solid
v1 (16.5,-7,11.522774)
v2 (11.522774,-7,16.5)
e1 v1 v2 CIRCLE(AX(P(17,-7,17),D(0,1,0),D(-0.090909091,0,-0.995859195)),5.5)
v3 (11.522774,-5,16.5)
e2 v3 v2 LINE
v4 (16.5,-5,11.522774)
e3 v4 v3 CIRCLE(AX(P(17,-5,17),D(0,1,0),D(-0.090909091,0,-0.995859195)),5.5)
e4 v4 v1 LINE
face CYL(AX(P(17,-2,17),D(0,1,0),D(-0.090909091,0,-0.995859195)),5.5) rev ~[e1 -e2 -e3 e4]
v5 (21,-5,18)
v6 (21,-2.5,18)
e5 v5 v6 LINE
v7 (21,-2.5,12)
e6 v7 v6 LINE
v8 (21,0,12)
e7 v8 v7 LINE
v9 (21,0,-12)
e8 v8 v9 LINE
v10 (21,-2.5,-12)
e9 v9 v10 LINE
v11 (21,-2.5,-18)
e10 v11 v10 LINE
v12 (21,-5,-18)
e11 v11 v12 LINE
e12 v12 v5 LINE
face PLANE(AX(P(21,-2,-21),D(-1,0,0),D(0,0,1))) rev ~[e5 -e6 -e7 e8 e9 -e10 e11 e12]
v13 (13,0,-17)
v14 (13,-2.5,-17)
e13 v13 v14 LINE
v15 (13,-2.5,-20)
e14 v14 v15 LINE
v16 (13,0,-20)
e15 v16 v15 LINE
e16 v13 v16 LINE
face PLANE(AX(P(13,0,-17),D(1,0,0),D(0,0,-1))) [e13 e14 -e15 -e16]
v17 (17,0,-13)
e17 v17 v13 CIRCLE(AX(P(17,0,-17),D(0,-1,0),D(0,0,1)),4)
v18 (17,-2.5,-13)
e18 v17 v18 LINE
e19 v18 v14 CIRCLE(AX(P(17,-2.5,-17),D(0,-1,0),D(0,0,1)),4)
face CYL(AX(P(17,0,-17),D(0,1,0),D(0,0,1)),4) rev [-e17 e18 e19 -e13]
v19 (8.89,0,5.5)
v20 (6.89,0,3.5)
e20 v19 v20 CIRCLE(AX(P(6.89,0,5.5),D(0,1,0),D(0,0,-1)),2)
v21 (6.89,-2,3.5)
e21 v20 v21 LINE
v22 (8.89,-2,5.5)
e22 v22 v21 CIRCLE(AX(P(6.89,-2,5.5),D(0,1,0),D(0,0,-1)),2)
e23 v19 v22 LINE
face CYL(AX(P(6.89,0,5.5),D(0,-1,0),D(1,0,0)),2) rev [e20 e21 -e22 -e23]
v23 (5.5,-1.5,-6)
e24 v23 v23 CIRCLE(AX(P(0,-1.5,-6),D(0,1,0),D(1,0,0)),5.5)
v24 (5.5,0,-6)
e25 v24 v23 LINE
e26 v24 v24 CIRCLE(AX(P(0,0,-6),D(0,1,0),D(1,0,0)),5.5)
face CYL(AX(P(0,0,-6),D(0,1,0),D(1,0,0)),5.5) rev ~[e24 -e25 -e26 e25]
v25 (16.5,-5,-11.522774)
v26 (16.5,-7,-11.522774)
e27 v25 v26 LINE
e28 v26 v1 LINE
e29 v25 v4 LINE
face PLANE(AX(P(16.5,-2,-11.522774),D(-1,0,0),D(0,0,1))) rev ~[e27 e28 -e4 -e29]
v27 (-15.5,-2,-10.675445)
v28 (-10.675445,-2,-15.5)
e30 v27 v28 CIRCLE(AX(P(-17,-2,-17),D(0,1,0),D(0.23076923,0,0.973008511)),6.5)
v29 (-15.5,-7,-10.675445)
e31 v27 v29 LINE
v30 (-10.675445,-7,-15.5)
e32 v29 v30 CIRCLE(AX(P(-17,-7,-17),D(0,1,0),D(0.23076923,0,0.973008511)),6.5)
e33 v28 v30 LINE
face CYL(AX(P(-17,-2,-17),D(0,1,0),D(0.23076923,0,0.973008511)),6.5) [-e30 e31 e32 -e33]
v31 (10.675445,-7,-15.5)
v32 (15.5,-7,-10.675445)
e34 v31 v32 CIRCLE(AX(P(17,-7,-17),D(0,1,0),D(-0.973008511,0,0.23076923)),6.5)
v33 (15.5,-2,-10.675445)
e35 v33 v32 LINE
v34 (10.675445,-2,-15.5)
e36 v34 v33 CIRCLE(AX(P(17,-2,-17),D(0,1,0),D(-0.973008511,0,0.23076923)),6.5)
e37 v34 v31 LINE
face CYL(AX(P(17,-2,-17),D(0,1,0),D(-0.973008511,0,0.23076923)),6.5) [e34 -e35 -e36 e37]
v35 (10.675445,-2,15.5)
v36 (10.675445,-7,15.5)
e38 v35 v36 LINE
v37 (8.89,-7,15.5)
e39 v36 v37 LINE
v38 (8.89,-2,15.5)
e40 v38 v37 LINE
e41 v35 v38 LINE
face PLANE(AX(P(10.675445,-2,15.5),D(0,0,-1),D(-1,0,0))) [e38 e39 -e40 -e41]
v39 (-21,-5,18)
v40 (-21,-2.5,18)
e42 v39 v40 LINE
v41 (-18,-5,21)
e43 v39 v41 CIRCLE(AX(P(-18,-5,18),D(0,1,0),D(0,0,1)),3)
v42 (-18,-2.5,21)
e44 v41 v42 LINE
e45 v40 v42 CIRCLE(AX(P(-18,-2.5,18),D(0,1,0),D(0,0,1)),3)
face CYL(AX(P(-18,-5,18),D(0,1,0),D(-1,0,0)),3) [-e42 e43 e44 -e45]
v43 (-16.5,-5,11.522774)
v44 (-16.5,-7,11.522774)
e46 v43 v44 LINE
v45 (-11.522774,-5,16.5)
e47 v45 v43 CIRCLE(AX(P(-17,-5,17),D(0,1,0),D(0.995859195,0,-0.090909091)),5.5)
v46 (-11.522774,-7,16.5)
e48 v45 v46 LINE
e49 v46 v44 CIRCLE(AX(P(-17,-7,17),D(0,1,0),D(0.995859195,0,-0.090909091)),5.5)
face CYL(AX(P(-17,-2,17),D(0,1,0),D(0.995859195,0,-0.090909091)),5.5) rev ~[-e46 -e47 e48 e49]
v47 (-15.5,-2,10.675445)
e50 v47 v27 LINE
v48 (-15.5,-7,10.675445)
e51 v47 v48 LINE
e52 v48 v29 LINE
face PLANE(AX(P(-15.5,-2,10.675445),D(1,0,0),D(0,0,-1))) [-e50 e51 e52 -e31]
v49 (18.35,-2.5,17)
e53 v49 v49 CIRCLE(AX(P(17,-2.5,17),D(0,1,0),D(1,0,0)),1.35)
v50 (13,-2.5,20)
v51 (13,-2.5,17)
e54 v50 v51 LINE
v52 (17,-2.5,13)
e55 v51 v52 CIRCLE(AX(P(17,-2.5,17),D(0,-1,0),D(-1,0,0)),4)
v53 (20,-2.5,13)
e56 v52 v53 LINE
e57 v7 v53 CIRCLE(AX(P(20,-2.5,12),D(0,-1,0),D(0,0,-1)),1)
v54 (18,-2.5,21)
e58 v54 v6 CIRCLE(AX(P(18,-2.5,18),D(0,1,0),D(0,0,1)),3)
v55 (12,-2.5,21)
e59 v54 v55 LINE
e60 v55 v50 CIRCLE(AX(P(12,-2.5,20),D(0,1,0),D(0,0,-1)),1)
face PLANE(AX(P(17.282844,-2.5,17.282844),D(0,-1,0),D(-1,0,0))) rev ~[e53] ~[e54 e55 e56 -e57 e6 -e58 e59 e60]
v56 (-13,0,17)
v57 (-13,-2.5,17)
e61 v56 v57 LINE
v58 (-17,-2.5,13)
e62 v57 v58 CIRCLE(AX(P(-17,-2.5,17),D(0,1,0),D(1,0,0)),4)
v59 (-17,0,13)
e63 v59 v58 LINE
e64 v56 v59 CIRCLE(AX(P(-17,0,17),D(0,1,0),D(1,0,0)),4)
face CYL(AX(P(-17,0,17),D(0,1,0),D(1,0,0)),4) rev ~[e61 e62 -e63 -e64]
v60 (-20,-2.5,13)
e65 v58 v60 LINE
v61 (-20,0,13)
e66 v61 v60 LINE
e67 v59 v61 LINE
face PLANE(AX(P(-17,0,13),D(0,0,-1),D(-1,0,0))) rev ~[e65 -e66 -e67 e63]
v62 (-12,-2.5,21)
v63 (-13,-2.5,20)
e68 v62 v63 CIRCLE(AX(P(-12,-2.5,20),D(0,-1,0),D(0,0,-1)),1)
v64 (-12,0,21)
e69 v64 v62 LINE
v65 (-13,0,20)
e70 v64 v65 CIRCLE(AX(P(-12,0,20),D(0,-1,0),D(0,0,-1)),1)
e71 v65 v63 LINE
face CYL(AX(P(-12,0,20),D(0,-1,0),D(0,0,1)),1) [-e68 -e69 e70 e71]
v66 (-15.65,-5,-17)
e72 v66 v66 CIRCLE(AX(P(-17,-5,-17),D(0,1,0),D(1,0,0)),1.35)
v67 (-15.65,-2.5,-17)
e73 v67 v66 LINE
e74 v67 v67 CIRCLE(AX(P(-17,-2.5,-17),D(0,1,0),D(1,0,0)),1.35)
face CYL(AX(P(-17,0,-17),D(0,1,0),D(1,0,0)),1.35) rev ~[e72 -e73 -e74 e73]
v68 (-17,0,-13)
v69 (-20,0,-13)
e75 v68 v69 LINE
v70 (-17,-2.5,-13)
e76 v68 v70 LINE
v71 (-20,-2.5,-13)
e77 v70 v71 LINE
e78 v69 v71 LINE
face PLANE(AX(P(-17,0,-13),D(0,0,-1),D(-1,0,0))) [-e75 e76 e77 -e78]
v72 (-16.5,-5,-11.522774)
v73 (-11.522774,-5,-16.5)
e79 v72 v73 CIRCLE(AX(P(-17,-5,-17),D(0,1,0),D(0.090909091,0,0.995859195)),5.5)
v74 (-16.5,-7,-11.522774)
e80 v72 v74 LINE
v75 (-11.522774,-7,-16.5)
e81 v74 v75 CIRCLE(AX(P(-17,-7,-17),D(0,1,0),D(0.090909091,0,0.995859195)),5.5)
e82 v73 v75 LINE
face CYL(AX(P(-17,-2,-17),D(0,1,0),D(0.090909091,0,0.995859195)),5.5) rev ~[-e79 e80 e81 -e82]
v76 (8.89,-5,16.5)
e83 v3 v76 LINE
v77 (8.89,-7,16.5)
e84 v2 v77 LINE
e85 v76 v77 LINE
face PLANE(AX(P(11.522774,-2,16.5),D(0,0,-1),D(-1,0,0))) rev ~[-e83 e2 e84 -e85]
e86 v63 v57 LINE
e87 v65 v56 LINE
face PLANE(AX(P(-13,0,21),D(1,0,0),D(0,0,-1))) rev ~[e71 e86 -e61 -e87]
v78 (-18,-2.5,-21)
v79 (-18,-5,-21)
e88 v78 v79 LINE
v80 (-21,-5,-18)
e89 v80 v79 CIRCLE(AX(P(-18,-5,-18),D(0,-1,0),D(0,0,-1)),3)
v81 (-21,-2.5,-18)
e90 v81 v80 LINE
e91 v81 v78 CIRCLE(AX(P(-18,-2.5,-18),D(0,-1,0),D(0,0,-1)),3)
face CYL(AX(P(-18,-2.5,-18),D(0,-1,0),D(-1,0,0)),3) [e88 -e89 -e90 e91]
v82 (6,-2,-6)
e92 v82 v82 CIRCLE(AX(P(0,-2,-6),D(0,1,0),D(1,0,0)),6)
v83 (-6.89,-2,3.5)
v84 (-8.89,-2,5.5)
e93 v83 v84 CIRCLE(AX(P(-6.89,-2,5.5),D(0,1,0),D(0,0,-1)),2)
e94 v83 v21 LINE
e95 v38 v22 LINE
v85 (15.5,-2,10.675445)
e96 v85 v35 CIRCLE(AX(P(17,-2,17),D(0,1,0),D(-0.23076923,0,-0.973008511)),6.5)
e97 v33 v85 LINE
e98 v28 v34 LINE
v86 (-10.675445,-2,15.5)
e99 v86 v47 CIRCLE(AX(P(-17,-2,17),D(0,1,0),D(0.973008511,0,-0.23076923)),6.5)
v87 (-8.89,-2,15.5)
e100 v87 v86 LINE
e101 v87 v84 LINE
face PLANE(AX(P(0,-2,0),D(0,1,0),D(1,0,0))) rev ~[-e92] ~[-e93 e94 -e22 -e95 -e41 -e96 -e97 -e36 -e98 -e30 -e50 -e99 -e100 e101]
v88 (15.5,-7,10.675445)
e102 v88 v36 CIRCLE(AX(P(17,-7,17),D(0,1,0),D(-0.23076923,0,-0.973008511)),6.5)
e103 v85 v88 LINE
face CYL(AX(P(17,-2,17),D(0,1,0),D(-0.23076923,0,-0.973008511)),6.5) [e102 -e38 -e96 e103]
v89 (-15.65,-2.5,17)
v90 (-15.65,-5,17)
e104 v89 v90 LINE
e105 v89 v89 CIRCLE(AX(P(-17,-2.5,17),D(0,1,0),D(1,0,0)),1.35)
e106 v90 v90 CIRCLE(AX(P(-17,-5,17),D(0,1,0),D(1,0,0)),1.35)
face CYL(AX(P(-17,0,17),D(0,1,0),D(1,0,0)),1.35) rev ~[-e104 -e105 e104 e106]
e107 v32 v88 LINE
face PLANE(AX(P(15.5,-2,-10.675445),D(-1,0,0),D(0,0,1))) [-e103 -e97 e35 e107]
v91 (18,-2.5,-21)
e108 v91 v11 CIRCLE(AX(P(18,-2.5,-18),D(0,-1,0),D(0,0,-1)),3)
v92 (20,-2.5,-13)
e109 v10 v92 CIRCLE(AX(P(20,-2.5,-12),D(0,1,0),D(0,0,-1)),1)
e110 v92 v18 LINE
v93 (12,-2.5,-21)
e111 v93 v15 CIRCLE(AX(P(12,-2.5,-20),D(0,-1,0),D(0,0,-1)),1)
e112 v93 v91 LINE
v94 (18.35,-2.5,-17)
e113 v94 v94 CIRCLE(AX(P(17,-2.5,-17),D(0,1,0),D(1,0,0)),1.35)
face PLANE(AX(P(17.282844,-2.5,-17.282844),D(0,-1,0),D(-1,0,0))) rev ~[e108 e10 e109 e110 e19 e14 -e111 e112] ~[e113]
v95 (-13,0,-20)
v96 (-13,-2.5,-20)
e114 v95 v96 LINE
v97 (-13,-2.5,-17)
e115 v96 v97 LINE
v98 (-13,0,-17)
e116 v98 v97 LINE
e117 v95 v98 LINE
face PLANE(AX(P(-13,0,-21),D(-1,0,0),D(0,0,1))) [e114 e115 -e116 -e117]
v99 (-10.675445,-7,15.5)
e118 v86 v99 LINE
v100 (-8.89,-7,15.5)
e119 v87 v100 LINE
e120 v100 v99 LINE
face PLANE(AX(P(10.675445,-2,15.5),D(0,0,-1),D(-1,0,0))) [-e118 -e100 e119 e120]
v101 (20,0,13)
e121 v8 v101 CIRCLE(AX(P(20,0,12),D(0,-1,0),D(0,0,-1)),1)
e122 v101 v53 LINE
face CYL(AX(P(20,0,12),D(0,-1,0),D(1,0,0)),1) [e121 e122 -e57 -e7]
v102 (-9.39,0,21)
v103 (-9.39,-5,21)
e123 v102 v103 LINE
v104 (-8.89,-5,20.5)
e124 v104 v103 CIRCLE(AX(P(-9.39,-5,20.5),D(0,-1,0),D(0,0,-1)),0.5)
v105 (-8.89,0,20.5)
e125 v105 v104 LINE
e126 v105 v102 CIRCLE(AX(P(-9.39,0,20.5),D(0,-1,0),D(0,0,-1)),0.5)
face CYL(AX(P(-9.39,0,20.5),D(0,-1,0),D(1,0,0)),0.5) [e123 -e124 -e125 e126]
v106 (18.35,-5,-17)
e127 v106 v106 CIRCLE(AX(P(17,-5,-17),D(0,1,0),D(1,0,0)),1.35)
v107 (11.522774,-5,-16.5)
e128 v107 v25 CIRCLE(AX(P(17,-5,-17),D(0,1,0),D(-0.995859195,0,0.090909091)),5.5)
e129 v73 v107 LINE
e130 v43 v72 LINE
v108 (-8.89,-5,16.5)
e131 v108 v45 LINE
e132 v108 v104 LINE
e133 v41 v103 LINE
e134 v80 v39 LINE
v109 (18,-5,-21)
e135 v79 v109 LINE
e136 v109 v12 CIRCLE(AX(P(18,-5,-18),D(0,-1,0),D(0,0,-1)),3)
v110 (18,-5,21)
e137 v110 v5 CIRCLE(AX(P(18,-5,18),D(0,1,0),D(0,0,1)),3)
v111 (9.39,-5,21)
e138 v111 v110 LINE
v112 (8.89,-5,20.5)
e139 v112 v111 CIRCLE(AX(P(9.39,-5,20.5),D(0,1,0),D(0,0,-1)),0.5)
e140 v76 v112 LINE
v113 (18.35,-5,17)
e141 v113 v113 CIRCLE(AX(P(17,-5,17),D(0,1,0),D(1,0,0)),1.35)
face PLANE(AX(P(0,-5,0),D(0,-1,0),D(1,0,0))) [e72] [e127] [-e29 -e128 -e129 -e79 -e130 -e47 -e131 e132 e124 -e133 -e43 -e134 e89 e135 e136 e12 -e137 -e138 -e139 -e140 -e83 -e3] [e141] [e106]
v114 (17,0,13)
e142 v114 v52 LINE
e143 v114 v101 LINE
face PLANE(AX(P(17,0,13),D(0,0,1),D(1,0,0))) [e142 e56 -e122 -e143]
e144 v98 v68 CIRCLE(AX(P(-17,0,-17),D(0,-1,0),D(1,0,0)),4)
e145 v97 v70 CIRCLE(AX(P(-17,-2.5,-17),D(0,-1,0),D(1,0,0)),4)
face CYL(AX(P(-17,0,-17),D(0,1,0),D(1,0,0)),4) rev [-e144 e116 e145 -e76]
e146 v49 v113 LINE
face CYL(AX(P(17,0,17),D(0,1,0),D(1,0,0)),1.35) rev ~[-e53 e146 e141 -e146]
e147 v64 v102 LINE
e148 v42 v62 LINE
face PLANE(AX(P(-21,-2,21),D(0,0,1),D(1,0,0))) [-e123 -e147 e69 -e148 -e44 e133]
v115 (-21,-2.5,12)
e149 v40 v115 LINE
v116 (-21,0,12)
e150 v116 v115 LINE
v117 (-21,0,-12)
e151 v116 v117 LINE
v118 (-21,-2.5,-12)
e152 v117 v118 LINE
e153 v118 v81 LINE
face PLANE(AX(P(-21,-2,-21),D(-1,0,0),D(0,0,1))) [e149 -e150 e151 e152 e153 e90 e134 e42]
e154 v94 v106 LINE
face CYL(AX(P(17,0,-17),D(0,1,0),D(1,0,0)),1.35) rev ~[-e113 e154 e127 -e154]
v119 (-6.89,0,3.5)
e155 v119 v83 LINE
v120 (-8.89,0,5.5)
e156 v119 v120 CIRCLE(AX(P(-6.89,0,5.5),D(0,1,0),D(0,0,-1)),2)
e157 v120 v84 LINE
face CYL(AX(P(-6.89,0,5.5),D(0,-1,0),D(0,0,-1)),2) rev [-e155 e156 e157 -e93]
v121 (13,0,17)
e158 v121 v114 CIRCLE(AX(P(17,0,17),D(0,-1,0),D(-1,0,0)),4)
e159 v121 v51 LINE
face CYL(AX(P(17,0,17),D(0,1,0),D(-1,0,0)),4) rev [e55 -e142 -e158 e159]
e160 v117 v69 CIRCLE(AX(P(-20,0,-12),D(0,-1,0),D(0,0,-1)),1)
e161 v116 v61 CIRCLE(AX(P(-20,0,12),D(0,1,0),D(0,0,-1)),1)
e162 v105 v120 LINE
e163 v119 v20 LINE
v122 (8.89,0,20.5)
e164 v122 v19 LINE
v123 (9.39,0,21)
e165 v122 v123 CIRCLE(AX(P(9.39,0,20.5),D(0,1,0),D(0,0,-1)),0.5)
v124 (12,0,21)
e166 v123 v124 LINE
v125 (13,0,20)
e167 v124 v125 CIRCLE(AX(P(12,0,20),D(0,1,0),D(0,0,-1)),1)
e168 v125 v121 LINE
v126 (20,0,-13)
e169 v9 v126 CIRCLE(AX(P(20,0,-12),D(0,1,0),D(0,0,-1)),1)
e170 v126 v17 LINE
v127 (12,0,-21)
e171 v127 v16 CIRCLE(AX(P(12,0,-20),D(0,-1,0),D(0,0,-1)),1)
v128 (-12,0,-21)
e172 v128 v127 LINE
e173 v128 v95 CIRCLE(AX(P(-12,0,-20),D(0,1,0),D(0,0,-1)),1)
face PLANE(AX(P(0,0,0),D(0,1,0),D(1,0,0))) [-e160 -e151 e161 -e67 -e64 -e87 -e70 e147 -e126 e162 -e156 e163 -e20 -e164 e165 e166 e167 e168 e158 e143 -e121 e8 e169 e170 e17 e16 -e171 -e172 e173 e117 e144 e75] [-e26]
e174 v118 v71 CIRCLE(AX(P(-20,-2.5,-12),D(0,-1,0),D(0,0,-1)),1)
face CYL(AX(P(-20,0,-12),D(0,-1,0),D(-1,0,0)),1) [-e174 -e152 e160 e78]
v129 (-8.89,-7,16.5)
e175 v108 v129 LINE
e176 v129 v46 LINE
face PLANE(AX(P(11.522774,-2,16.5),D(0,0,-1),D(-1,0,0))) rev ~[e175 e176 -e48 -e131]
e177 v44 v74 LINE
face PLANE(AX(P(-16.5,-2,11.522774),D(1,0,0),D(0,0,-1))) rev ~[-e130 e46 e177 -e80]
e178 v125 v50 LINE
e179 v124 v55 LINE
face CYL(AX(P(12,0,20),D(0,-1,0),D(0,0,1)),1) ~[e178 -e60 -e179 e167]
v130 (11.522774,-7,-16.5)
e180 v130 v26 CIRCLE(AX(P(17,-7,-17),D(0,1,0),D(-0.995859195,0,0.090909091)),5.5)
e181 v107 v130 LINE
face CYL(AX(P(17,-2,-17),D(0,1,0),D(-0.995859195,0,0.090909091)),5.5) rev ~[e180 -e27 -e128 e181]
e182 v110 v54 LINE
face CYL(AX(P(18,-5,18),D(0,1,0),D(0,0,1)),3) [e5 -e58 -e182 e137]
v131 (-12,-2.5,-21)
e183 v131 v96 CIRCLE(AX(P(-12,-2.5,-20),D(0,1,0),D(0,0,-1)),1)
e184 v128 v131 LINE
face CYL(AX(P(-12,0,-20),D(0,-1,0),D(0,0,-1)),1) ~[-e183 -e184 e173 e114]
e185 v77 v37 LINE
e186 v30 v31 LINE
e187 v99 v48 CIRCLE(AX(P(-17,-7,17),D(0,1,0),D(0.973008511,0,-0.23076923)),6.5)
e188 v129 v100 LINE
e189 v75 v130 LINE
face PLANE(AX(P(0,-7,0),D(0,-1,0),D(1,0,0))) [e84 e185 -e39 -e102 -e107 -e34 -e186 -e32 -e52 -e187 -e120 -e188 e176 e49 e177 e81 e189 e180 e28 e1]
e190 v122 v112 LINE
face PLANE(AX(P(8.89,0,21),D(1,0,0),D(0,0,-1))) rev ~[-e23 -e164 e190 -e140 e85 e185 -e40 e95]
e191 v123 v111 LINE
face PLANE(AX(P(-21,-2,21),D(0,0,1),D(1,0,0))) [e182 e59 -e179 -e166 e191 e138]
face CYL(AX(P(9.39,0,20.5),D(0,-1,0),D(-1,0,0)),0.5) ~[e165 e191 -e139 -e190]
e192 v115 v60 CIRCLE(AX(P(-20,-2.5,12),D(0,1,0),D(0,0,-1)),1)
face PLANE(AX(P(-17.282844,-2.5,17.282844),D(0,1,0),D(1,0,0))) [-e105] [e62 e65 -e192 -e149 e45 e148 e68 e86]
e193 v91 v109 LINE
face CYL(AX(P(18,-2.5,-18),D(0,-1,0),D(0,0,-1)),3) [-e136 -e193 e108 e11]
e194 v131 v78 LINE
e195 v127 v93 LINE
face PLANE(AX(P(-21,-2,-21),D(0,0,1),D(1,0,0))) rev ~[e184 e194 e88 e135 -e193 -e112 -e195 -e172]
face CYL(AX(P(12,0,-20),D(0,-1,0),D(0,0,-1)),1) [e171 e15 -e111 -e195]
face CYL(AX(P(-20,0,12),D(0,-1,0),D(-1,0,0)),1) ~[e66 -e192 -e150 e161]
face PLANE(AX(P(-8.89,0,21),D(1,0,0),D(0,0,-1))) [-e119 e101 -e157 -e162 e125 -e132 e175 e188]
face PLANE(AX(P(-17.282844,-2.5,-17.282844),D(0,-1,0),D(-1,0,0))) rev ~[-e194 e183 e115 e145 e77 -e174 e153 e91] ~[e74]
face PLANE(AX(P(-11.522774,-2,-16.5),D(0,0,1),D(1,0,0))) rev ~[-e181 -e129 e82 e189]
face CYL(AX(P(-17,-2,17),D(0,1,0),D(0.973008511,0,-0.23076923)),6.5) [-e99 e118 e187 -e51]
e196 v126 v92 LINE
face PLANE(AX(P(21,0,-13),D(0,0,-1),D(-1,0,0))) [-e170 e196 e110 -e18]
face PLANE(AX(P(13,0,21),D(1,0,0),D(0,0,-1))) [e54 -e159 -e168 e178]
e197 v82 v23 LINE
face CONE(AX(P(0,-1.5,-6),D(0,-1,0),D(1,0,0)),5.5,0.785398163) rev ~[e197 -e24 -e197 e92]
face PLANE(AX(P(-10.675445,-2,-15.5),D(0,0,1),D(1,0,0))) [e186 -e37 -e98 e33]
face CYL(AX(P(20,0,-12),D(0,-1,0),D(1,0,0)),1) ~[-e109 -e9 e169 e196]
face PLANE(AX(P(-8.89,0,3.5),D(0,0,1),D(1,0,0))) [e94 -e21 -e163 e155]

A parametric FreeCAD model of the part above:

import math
import FreeCAD as App
import Part
import Sketcher
from FreeCAD import Vector
Q = App.Units.Quantity


def edges_at(feature, points):
    """Names of the edges that pass closest to the given points."""
    edges = feature.Shape.Edges
    near = lambda p: min(range(len(edges)), key=lambda i: edges[i].distToShape(Part.Vertex(*p))[0])
    return sorted({f"Edge{near(p) + 1}" for p in points})

doc = App.newDocument("Part")
body = doc.addObject("PartDesign::Body", "Body")

sketch1 = body.newObject("Sketcher::SketchObject", "Sketch")
sketch1.AttachmentSupport = (doc.getObject("XZ_Plane"), [""])
sketch1.MapMode = "FlatFace"
sketch1.addGeometry([
    Part.LineSegment(Vector(-21, -21, 0), Vector(-21, 21, 0)),
    Part.LineSegment(Vector(-21, 21, 0), Vector(21, 21, 0)),
    Part.LineSegment(Vector(21, 21, 0), Vector(21, -21, 0)),
    Part.LineSegment(Vector(21, -21, 0), Vector(-21, -21, 0)),
    Part.Circle(Vector(0, -6, 0), Vector(0, 0, 1), 6),
], False)
sketch1.addConstraint([
    Sketcher.Constraint("Coincident", 0, 2, 1, 1),
    Sketcher.Constraint("Coincident", 1, 2, 2, 1),
    Sketcher.Constraint("Coincident", 2, 2, 3, 1),
    Sketcher.Constraint("Coincident", 3, 2, 0, 1),
    Sketcher.Constraint("Vertical", 0),
    Sketcher.Constraint("Horizontal", 1),
    Sketcher.Constraint("Vertical", 2),
    Sketcher.Constraint("Horizontal", 3),
    Sketcher.Constraint("Symmetric", 0, 2, 2, 2, -1, 1),
    Sketcher.Constraint("PointOnObject", 4, 3, -2),
    Sketcher.Constraint("Equal", 3, 0),
    Sketcher.Constraint("Diameter", 4, Q("11 mm")),
    Sketcher.Constraint("DistanceX", 1, 1, 1, 2, Q("42 mm")),
    Sketcher.Constraint("DistanceY", 4, 3, -1, 1, Q("6 mm")),
])
pad1 = body.newObject("PartDesign::Pad", "Pad")
pad1.Profile = sketch1
pad1.Length = 2

sketch2 = body.newObject("Sketcher::SketchObject", "Sketch001")
sketch2.AttachmentSupport = (doc.getObject("XZ_Plane"), [""])
sketch2.MapMode = "FlatFace"
sketch2.AttachmentOffset = App.Placement(Vector(0, 0, 2), App.Rotation())
sketch2.addGeometry([
    Part.LineSegment(Vector(-21, 21, 0), Vector(-21, -21, 0)),
    Part.LineSegment(Vector(-21, -21, 0), Vector(21, -21, 0)),
    Part.LineSegment(Vector(21, -21, 0), Vector(21, 21, 0)),
    Part.LineSegment(Vector(21, 21, 0), Vector(-21, 21, 0)),
    Part.LineSegment(Vector(-17, -11.5, 0), Vector(-17, 11.5, 0)),
    Part.ArcOfCircle(Part.Circle(Vector(-16.5, 11.5, 0), Vector(0, 0, 1), 0.5), math.radians(95), math.radians(180)),
    Part.ArcOfCircle(Part.Circle(Vector(-17, 17, 0), Vector(0, 0, 1), 5), math.radians(-85), math.radians(-5)),
    Part.ArcOfCircle(Part.Circle(Vector(-11.5, 16.5, 0), Vector(0, 0, 1), 0.5), math.radians(90), math.radians(175)),
    Part.LineSegment(Vector(-11.5, 17, 0), Vector(11.5, 17, 0)),
    Part.ArcOfCircle(Part.Circle(Vector(11.5, 16.5, 0), Vector(0, 0, 1), 0.5), math.radians(5), math.radians(90)),
    Part.ArcOfCircle(Part.Circle(Vector(17, 17, 0), Vector(0, 0, 1), 5), math.radians(-175), math.radians(-95)),
    Part.ArcOfCircle(Part.Circle(Vector(16.5, 11.5, 0), Vector(0, 0, 1), 0.5), math.radians(0), math.radians(85)),
    Part.LineSegment(Vector(17, 11.5, 0), Vector(17, -11.5, 0)),
    Part.ArcOfCircle(Part.Circle(Vector(16.5, -11.5, 0), Vector(0, 0, 1), 0.5), math.radians(-85), math.radians(0)),
    Part.ArcOfCircle(Part.Circle(Vector(17, -17, 0), Vector(0, 0, 1), 5), math.radians(95), math.radians(175)),
    Part.ArcOfCircle(Part.Circle(Vector(11.5, -16.5, 0), Vector(0, 0, 1), 0.5), math.radians(-90), math.radians(-5)),
    Part.LineSegment(Vector(11.5, -17, 0), Vector(-11.5, -17, 0)),
    Part.ArcOfCircle(Part.Circle(Vector(-11.5, -16.5, 0), Vector(0, 0, 1), 0.5), math.radians(-175), math.radians(-90)),
    Part.ArcOfCircle(Part.Circle(Vector(-17, -17, 0), Vector(0, 0, 1), 5), math.radians(5), math.radians(85)),
    Part.ArcOfCircle(Part.Circle(Vector(-16.5, -11.5, 0), Vector(0, 0, 1), 0.5), math.radians(180), math.radians(265)),
], False)
sketch2.addConstraint([
    Sketcher.Constraint("Coincident", 0, 2, 1, 1),
    Sketcher.Constraint("Coincident", 1, 2, 2, 1),
    Sketcher.Constraint("Coincident", 2, 2, 3, 1),
    Sketcher.Constraint("Coincident", 3, 2, 0, 1),
    Sketcher.Constraint("Tangent", 4, 2, 5, 2),
    Sketcher.Constraint("Tangent", 5, 1, 6, 1),
    Sketcher.Constraint("Tangent", 6, 2, 7, 2),
    Sketcher.Constraint("Tangent", 7, 1, 8, 1),
    Sketcher.Constraint("Tangent", 8, 2, 9, 2),
    Sketcher.Constraint("Tangent", 9, 1, 10, 1),
    Sketcher.Constraint("Tangent", 10, 2, 11, 2),
    Sketcher.Constraint("Tangent", 11, 1, 12, 1),
    Sketcher.Constraint("Tangent", 12, 2, 13, 2),
    Sketcher.Constraint("Tangent", 13, 1, 14, 1),
    Sketcher.Constraint("Tangent", 14, 2, 15, 2),
    Sketcher.Constraint("Tangent", 15, 1, 16, 1),
    Sketcher.Constraint("Tangent", 16, 2, 17, 2),
    Sketcher.Constraint("Tangent", 17, 1, 18, 1),
    Sketcher.Constraint("Tangent", 18, 2, 19, 2),
    Sketcher.Constraint("Tangent", 19, 1, 4, 1),
    Sketcher.Constraint("Vertical", 0),
    Sketcher.Constraint("Horizontal", 1),
    Sketcher.Constraint("Vertical", 2),
    Sketcher.Constraint("Horizontal", 3),
    Sketcher.Constraint("Vertical", 4),
    Sketcher.Constraint("Horizontal", 8),
    Sketcher.Constraint("Vertical", 12),
    Sketcher.Constraint("Horizontal", 16),
    Sketcher.Constraint("Equal", 5, 7),
    Sketcher.Constraint("Equal", 7, 9),
    Sketcher.Constraint("Equal", 6, 10),
    Sketcher.Constraint("Equal", 9, 11),
    Sketcher.Constraint("Equal", 11, 13),
    Sketcher.Constraint("Equal", 10, 14),
    Sketcher.Constraint("Equal", 13, 15),
    Sketcher.Constraint("Equal", 15, 17),
    Sketcher.Constraint("Equal", 14, 18),
    Sketcher.Constraint("Equal", 17, 19),
    Sketcher.Constraint("Symmetric", 5, 3, 13, 3, -1, 1),
    Sketcher.Constraint("Symmetric", 7, 3, 15, 3, -1, 1),
    Sketcher.Constraint("Symmetric", 10, 3, 18, 3, -1, 1),
    Sketcher.Constraint("Symmetric", 0, 2, 2, 2, -1, 1),
    Sketcher.Constraint("Symmetric", 6, 3, 10, 3, -2),
    Sketcher.Constraint("Horizontal", 10, 3, 7, 1),
    Sketcher.Constraint("Vertical", 18, 3, 4, 2),
    Sketcher.Constraint("Equal", 3, 0),
    Sketcher.Constraint("Equal", 16, 4),
    Sketcher.Constraint("Radius", 6, Q("5 mm")),
    Sketcher.Constraint("Radius", 5, Q("0.5 mm")),
    Sketcher.Constraint("DistanceX", 1, 1, 1, 2, Q("42 mm")),
    Sketcher.Constraint("DistanceX", 6, 3, -1, 1, Q("17 mm")),
])
pad2 = body.newObject("PartDesign::Pad", "Pad001")
pad2.Profile = sketch2
pad2.Length = 3

sketch3 = body.newObject("Sketcher::SketchObject", "Sketch002")
sketch3.AttachmentSupport = (doc.getObject("XZ_Plane"), [""])
sketch3.MapMode = "FlatFace"
sketch3.AttachmentOffset = App.Placement(Vector(0, 0, 2), App.Rotation())
sketch3.addGeometry([
    Part.LineSegment(Vector(-17, 11.5, 0), Vector(-17, -11.5, 0)),
    Part.ArcOfCircle(Part.Circle(Vector(-16.5, -11.5, 0), Vector(0, 0, 1), 0.5), math.radians(180), math.radians(265)),
    Part.ArcOfCircle(Part.Circle(Vector(-17, -17, 0), Vector(0, 0, 1), 5), math.radians(5), math.radians(85)),
    Part.ArcOfCircle(Part.Circle(Vector(-11.5, -16.5, 0), Vector(0, 0, 1), 0.5), math.radians(-175), math.radians(-90)),
    Part.LineSegment(Vector(-11.5, -17, 0), Vector(11.5, -17, 0)),
    Part.ArcOfCircle(Part.Circle(Vector(11.5, -16.5, 0), Vector(0, 0, 1), 0.5), math.radians(-90), math.radians(-5)),
    Part.ArcOfCircle(Part.Circle(Vector(17, -17, 0), Vector(0, 0, 1), 5), math.radians(95), math.radians(175)),
    Part.ArcOfCircle(Part.Circle(Vector(16.5, -11.5, 0), Vector(0, 0, 1), 0.5), math.radians(-85), math.radians(0)),
    Part.LineSegment(Vector(17, -11.5, 0), Vector(17, 11.5, 0)),
    Part.ArcOfCircle(Part.Circle(Vector(16.5, 11.5, 0), Vector(0, 0, 1), 0.5), math.radians(0), math.radians(85)),
    Part.ArcOfCircle(Part.Circle(Vector(17, 17, 0), Vector(0, 0, 1), 5), math.radians(-175), math.radians(-95)),
    Part.ArcOfCircle(Part.Circle(Vector(11.5, 16.5, 0), Vector(0, 0, 1), 0.5), math.radians(5), math.radians(90)),
    Part.LineSegment(Vector(11.5, 17, 0), Vector(-11.5, 17, 0)),
    Part.ArcOfCircle(Part.Circle(Vector(-11.5, 16.5, 0), Vector(0, 0, 1), 0.5), math.radians(90), math.radians(175)),
    Part.ArcOfCircle(Part.Circle(Vector(-17, 17, 0), Vector(0, 0, 1), 5), math.radians(-85), math.radians(-5)),
    Part.ArcOfCircle(Part.Circle(Vector(-16.5, 11.5, 0), Vector(0, 0, 1), 0.5), math.radians(95), math.radians(180)),
    Part.LineSegment(Vector(-16.5, -11.5, 0), Vector(-16.5, 11.5, 0)),
    Part.ArcOfCircle(Part.Circle(Vector(-17, 17, 0), Vector(0, 0, 1), 5.5), math.radians(-85), math.radians(-5)),
    Part.LineSegment(Vector(-11.5, 16.5, 0), Vector(11.5, 16.5, 0)),
    Part.ArcOfCircle(Part.Circle(Vector(17, 17, 0), Vector(0, 0, 1), 5.5), math.radians(-175), math.radians(-95)),
    Part.LineSegment(Vector(16.5, 11.5, 0), Vector(16.5, -11.5, 0)),
    Part.ArcOfCircle(Part.Circle(Vector(17, -17, 0), Vector(0, 0, 1), 5.5), math.radians(95), math.radians(175)),
    Part.LineSegment(Vector(11.5, -16.5, 0), Vector(-11.5, -16.5, 0)),
    Part.ArcOfCircle(Part.Circle(Vector(-17, -17, 0), Vector(0, 0, 1), 5.5), math.radians(5), math.radians(85)),
], False)
sketch3.addConstraint([
    Sketcher.Constraint("Tangent", 0, 2, 1, 1),
    Sketcher.Constraint("Tangent", 1, 2, 2, 2),
    Sketcher.Constraint("Tangent", 2, 1, 3, 1),
    Sketcher.Constraint("Tangent", 3, 2, 4, 1),
    Sketcher.Constraint("Tangent", 4, 2, 5, 1),
    Sketcher.Constraint("Tangent", 5, 2, 6, 2),
    Sketcher.Constraint("Tangent", 6, 1, 7, 1),
    Sketcher.Constraint("Tangent", 7, 2, 8, 1),
    Sketcher.Constraint("Tangent", 8, 2, 9, 1),
    Sketcher.Constraint("Tangent", 9, 2, 10, 2),
    Sketcher.Constraint("Tangent", 10, 1, 11, 1),
    Sketcher.Constraint("Tangent", 11, 2, 12, 1),
    Sketcher.Constraint("Tangent", 12, 2, 13, 1),
    Sketcher.Constraint("Tangent", 13, 2, 14, 2),
    Sketcher.Constraint("Tangent", 14, 1, 15, 1),
    Sketcher.Constraint("Tangent", 15, 2, 0, 1),
    Sketcher.Constraint("Coincident", 16, 2, 17, 1),
    Sketcher.Constraint("Coincident", 17, 2, 18, 1),
    Sketcher.Constraint("Coincident", 18, 2, 19, 1),
    Sketcher.Constraint("Coincident", 19, 2, 20, 1),
    Sketcher.Constraint("Coincident", 20, 2, 21, 1),
    Sketcher.Constraint("Coincident", 21, 2, 22, 1),
    Sketcher.Constraint("Coincident", 22, 2, 23, 1),
    Sketcher.Constraint("Coincident", 23, 2, 16, 1),
    Sketcher.Constraint("Vertical", 0),
    Sketcher.Constraint("Horizontal", 4),
    Sketcher.Constraint("Vertical", 8),
    Sketcher.Constraint("Horizontal", 12),
    Sketcher.Constraint("Vertical", 16),
    Sketcher.Constraint("Horizontal", 18),
    Sketcher.Constraint("Vertical", 20),
    Sketcher.Constraint("Horizontal", 22),
    Sketcher.Constraint("Coincident", 17, 3, 14, 3),
    Sketcher.Constraint("Coincident", 19, 3, 10, 3),
    Sketcher.Constraint("Coincident", 21, 3, 6, 3),
    Sketcher.Constraint("Coincident", 23, 3, 2, 3),
    Sketcher.Constraint("Coincident", 16, 2, 15, 3),
    Sketcher.Constraint("Coincident", 17, 2, 13, 3),
    Sketcher.Constraint("Coincident", 18, 2, 11, 3),
    Sketcher.Constraint("Coincident", 19, 2, 9, 3),
    Sketcher.Constraint("Coincident", 20, 2, 7, 3),
    Sketcher.Constraint("Coincident", 21, 2, 5, 3),
    Sketcher.Constraint("Coincident", 22, 2, 3, 3),
    Sketcher.Constraint("Equal", 1, 3),
    Sketcher.Constraint("Equal", 2, 6),
    Sketcher.Constraint("Equal", 6, 10),
    Sketcher.Constraint("Equal", 10, 14),
    Sketcher.Constraint("Symmetric", 1, 3, 9, 3, -1, 1),
    Sketcher.Constraint("Symmetric", 3, 3, 11, 3, -1, 1),
    Sketcher.Constraint("Symmetric", 6, 3, 14, 3, -1, 1),
    Sketcher.Constraint("Symmetric", 2, 3, 6, 3, -2),
    Sketcher.Constraint("Horizontal", 23, 3, 3, 2),
    Sketcher.Constraint("Vertical", 23, 3, 0, 2),
    Sketcher.Constraint("Equal", 22, 0),
    Sketcher.Constraint("Radius", 2, Q("5 mm")),
    Sketcher.Constraint("Radius", 1, Q("0.5 mm")),
    Sketcher.Constraint("DistanceX", 2, 3, -1, 1, Q("17 mm")),
])
pad3 = body.newObject("PartDesign::Pad", "Pad002")
pad3.Profile = sketch3
pad3.Length = 3

sketch4 = body.newObject("Sketcher::SketchObject", "Sketch003")
sketch4.AttachmentSupport = (doc.getObject("XZ_Plane"), [""])
sketch4.MapMode = "FlatFace"
sketch4.AttachmentOffset = App.Placement(Vector(0, 0, 2), App.Rotation())
sketch4.addGeometry([
    Part.LineSegment(Vector(12, 16, 0), Vector(-12, 16, 0)),
    Part.ArcOfCircle(Part.Circle(Vector(-17, 17, 0), Vector(0, 0, 1), 5), math.radians(-85), math.radians(-5)),
    Part.LineSegment(Vector(-16, 12, 0), Vector(-16, -12, 0)),
    Part.ArcOfCircle(Part.Circle(Vector(-17, -17, 0), Vector(0, 0, 1), 5), math.radians(5), math.radians(85)),
    Part.LineSegment(Vector(-12, -16, 0), Vector(12, -16, 0)),
    Part.ArcOfCircle(Part.Circle(Vector(17, -17, 0), Vector(0, 0, 1), 5), math.radians(95), math.radians(175)),
    Part.LineSegment(Vector(16, -12, 0), Vector(16, 12, 0)),
    Part.ArcOfCircle(Part.Circle(Vector(17, 17, 0), Vector(0, 0, 1), 5), math.radians(-175), math.radians(-95)),
    Part.LineSegment(Vector(-11, 16, 0), Vector(11, 16, 0)),
    Part.ArcOfCircle(Part.Circle(Vector(17, 17, 0), Vector(0, 0, 1), 6), math.radians(-167), math.radians(-103)),
    Part.LineSegment(Vector(16, 11, 0), Vector(16, -11, 0)),
    Part.ArcOfCircle(Part.Circle(Vector(17, -17, 0), Vector(0, 0, 1), 6), math.radians(103), math.radians(167)),
    Part.LineSegment(Vector(11, -16, 0), Vector(-11, -16, 0)),
    Part.ArcOfCircle(Part.Circle(Vector(-17, -17, 0), Vector(0, 0, 1), 6), math.radians(13), math.radians(77)),
    Part.LineSegment(Vector(-16, -11, 0), Vector(-16, 11, 0)),
    Part.ArcOfCircle(Part.Circle(Vector(-17, 17, 0), Vector(0, 0, 1), 6), math.radians(-77), math.radians(-13)),
], False)
sketch4.addConstraint([
    Sketcher.Constraint("Coincident", 0, 2, 1, 2),
    Sketcher.Constraint("Coincident", 1, 1, 2, 1),
    Sketcher.Constraint("Coincident", 2, 2, 3, 2),
    Sketcher.Constraint("Coincident", 3, 1, 4, 1),
    Sketcher.Constraint("Coincident", 4, 2, 5, 2),
    Sketcher.Constraint("Coincident", 5, 1, 6, 1),
    Sketcher.Constraint("Coincident", 6, 2, 7, 2),
    Sketcher.Constraint("Coincident", 7, 1, 0, 1),
    Sketcher.Constraint("Coincident", 8, 2, 9, 1),
    Sketcher.Constraint("Coincident", 9, 2, 10, 1),
    Sketcher.Constraint("Coincident", 10, 2, 11, 1),
    Sketcher.Constraint("Coincident", 11, 2, 12, 1),
    Sketcher.Constraint("Coincident", 12, 2, 13, 1),
    Sketcher.Constraint("Coincident", 13, 2, 14, 1),
    Sketcher.Constraint("Coincident", 14, 2, 15, 1),
    Sketcher.Constraint("Coincident", 15, 2, 8, 1),
    Sketcher.Constraint("Horizontal", 0),
    Sketcher.Constraint("Vertical", 2),
    Sketcher.Constraint("Horizontal", 4),
    Sketcher.Constraint("Vertical", 6),
    Sketcher.Constraint("Horizontal", 8),
    Sketcher.Constraint("Vertical", 10),
    Sketcher.Constraint("Horizontal", 12),
    Sketcher.Constraint("Vertical", 14),
    Sketcher.Constraint("Coincident", 9, 3, 7, 3),
    Sketcher.Constraint("Coincident", 11, 3, 5, 3),
    Sketcher.Constraint("Coincident", 13, 3, 3, 3),
    Sketcher.Constraint("Coincident", 15, 3, 1, 3),
    Sketcher.Constraint("Equal", 1, 3),
    Sketcher.Constraint("Equal", 3, 5),
    Sketcher.Constraint("Equal", 5, 7),
    Sketcher.Constraint("Equal", 9, 11),
    Sketcher.Constraint("Equal", 11, 13),
    Sketcher.Constraint("Equal", 13, 15),
    Sketcher.Constraint("Symmetric", 1, 3, 5, 3, -1, 1),
    Sketcher.Constraint("Symmetric", 3, 3, 7, 3, -1, 1),
    Sketcher.Constraint("Symmetric", 3, 3, 5, 3, -2),
    Sketcher.Constraint("Horizontal", 2, 2, 5, 1),
    Sketcher.Constraint("Horizontal", 10, 2, 13, 2),
    Sketcher.Constraint("Vertical", 0, 2, 3, 1),
    Sketcher.Constraint("Vertical", 8, 2, 11, 2),
    Sketcher.Constraint("Equal", 4, 2),
    Sketcher.Constraint("Equal", 12, 10),
    Sketcher.Constraint("Radius", 1, Q("5.5 mm")),
    Sketcher.Constraint("Radius", 9, Q("6.5 mm")),
    Sketcher.Constraint("DistanceX", 1, 3, -1, 1, Q("17 mm")),
    Sketcher.Constraint("DistanceY", -1, 1, 1, 3, Q("17 mm")),
    Sketcher.Constraint("DistanceY", 8, 2, 7, 1, Q("1 mm")),
    Sketcher.Constraint("DistanceY", -1, 1, 0, 2, Q("16.5 mm")),
])
pad4 = body.newObject("PartDesign::Pad", "Pad003")
pad4.Profile = sketch4
pad4.Length = 5

sketch5 = body.newObject("Sketcher::SketchObject", "Sketch004")
sketch5.AttachmentSupport = (doc.getObject("XZ_Plane"), [""])
sketch5.MapMode = "FlatFace"
sketch5.addGeometry([
    Part.LineSegment(Vector(-21, -13, 0), Vector(-17, -13, 0)),
    Part.ArcOfCircle(Part.Circle(Vector(-17, -17, 0), Vector(0, 0, 1), 4), math.radians(0), math.radians(90)),
    Part.LineSegment(Vector(-13, -17, 0), Vector(-13, -21, 0)),
    Part.LineSegment(Vector(-13, -21, 0), Vector(-21, -21, 0)),
    Part.LineSegment(Vector(-21, -21, 0), Vector(-21, -13, 0)),
    Part.LineSegment(Vector(13, -21, 0), Vector(13, -17, 0)),
    Part.ArcOfCircle(Part.Circle(Vector(17, -17, 0), Vector(0, 0, 1), 4), math.radians(90), math.radians(180)),
    Part.LineSegment(Vector(17, -13, 0), Vector(21, -13, 0)),
    Part.LineSegment(Vector(21, -13, 0), Vector(21, -21, 0)),
    Part.LineSegment(Vector(21, -21, 0), Vector(13, -21, 0)),
    Part.LineSegment(Vector(-21, 21, 0), Vector(-13, 21, 0)),
    Part.LineSegment(Vector(-13, 21, 0), Vector(-13, 17, 0)),
    Part.ArcOfCircle(Part.Circle(Vector(-17, 17, 0), Vector(0, 0, 1), 4), math.radians(-90), math.radians(0)),
    Part.LineSegment(Vector(-17, 13, 0), Vector(-21, 13, 0)),
    Part.LineSegment(Vector(-21, 13, 0), Vector(-21, 21, 0)),
    Part.LineSegment(Vector(21, 13, 0), Vector(17, 13, 0)),
    Part.ArcOfCircle(Part.Circle(Vector(17, 17, 0), Vector(0, 0, 1), 4), math.radians(180), math.radians(270)),
    Part.LineSegment(Vector(13, 17, 0), Vector(13, 21, 0)),
    Part.LineSegment(Vector(13, 21, 0), Vector(21, 21, 0)),
    Part.LineSegment(Vector(21, 21, 0), Vector(21, 13, 0)),
], False)
sketch5.addConstraint([
    Sketcher.Constraint("Tangent", 0, 2, 1, 2),
    Sketcher.Constraint("Tangent", 1, 1, 2, 1),
    Sketcher.Constraint("Coincident", 2, 2, 3, 1),
    Sketcher.Constraint("Coincident", 3, 2, 4, 1),
    Sketcher.Constraint("Coincident", 4, 2, 0, 1),
    Sketcher.Constraint("Tangent", 5, 2, 6, 2),
    Sketcher.Constraint("Tangent", 6, 1, 7, 1),
    Sketcher.Constraint("Coincident", 7, 2, 8, 1),
    Sketcher.Constraint("Coincident", 8, 2, 9, 1),
    Sketcher.Constraint("Coincident", 9, 2, 5, 1),
    Sketcher.Constraint("Coincident", 10, 2, 11, 1),
    Sketcher.Constraint("Tangent", 11, 2, 12, 2),
    Sketcher.Constraint("Tangent", 12, 1, 13, 1),
    Sketcher.Constraint("Coincident", 13, 2, 14, 1),
    Sketcher.Constraint("Coincident", 14, 2, 10, 1),
    Sketcher.Constraint("Tangent", 15, 2, 16, 2),
    Sketcher.Constraint("Tangent", 16, 1, 17, 1),
    Sketcher.Constraint("Coincident", 17, 2, 18, 1),
    Sketcher.Constraint("Coincident", 18, 2, 19, 1),
    Sketcher.Constraint("Coincident", 19, 2, 15, 1),
    Sketcher.Constraint("Horizontal", 0),
    Sketcher.Constraint("Vertical", 2),
    Sketcher.Constraint("Horizontal", 3),
    Sketcher.Constraint("Vertical", 4),
    Sketcher.Constraint("Vertical", 5),
    Sketcher.Constraint("Horizontal", 7),
    Sketcher.Constraint("Vertical", 8),
    Sketcher.Constraint("Horizontal", 9),
    Sketcher.Constraint("Horizontal", 10),
    Sketcher.Constraint("Vertical", 11),
    Sketcher.Constraint("Horizontal", 13),
    Sketcher.Constraint("Vertical", 14),
    Sketcher.Constraint("Horizontal", 15),
    Sketcher.Constraint("Vertical", 17),
    Sketcher.Constraint("Horizontal", 18),
    Sketcher.Constraint("Vertical", 19),
    Sketcher.Constraint("Equal", 1, 6),
    Sketcher.Constraint("Equal", 6, 12),
    Sketcher.Constraint("Equal", 12, 16),
    Sketcher.Constraint("Symmetric", 6, 3, 12, 3, -1, 1),
    Sketcher.Constraint("Symmetric", 1, 3, 16, 3, -1, 1),
    Sketcher.Constraint("Symmetric", 8, 2, 14, 2, -1, 1),
    Sketcher.Constraint("Symmetric", 3, 2, 18, 2, -1, 1),
    Sketcher.Constraint("Symmetric", 1, 3, 6, 3, -2),
    Sketcher.Constraint("Symmetric", 3, 2, 8, 2, -2),
    Sketcher.Constraint("Equal", 15, 2),
    Sketcher.Constraint("Radius", 1, Q("4 mm")),
    Sketcher.Constraint("DistanceX", 0, 1, 0, 2, Q("4 mm")),
    Sketcher.Constraint("DistanceX", 1, 3, -1, 1, Q("17 mm")),
    Sketcher.Constraint("DistanceY", 1, 3, -1, 1, Q("17 mm")),
])
pocket1 = body.newObject("PartDesign::Pocket", "Pocket")
pocket1.Profile = sketch5
pocket1.Length = 2.5
pocket1.Reversed = True

sketch6 = body.newObject("Sketcher::SketchObject", "Sketch005")
sketch6.AttachmentSupport = (doc.getObject("XZ_Plane"), [""])
sketch6.MapMode = "FlatFace"
sketch6.addGeometry([
    Part.Circle(Vector(-17, -17, 0), Vector(0, 0, 1), 1.4),
    Part.Circle(Vector(17, -17, 0), Vector(0, 0, 1), 1.4),
    Part.Circle(Vector(-17, 17, 0), Vector(0, 0, 1), 1.4),
    Part.Circle(Vector(17, 17, 0), Vector(0, 0, 1), 1.4),
], False)
sketch6.addConstraint([
    Sketcher.Constraint("Equal", 0, 1),
    Sketcher.Constraint("Equal", 1, 2),
    Sketcher.Constraint("Equal", 2, 3),
    Sketcher.Constraint("Symmetric", 1, 3, 2, 3, -1, 1),
    Sketcher.Constraint("Symmetric", 0, 3, 3, 3, -1, 1),
    Sketcher.Constraint("Symmetric", 0, 3, 1, 3, -2),
    Sketcher.Constraint("Diameter", 0, Q("2.7 mm")),
    Sketcher.Constraint("DistanceX", 0, 3, -1, 1, Q("17 mm")),
    Sketcher.Constraint("DistanceY", 0, 3, -1, 1, Q("17 mm")),
])
pocket2 = body.newObject("PartDesign::Pocket", "Pocket001")
pocket2.Profile = sketch6
pocket2.Type = "ThroughAll"
pocket2.Reversed = True
doc.recompute()

fillet = body.newObject("PartDesign::Fillet", "Fillet")
fillet.Base = (pocket2, edges_at(pocket2, [
    (21, -3.75, 21),
    (-21, -3.75, 21),
    (-21, -3.75, -21),
    (21, -3.75, -21),
]))
fillet.Radius = 3
doc.recompute()

fillet2 = body.newObject("PartDesign::Fillet", "Fillet001")
fillet2.Base = (fillet, edges_at(fillet, [
    (13, -1.25, -21),
    (21, -1.25, -13),
    (-21, -1.25, 13),
    (-13, -1.25, 21),
    (21, -1.25, 13),
    (13, -1.25, 21),
    (-21, -1.25, -13),
    (-13, -1.25, -21),
]))
fillet2.Radius = 1
doc.recompute()

chamfer = body.newObject("PartDesign::Chamfer", "Chamfer")
chamfer.Base = (fillet2, edges_at(fillet2, [(-5.5, -2, -6)]))
chamfer.Size = 0.5

sketch7 = body.newObject("Sketcher::SketchObject", "Sketch006")
sketch7.AttachmentSupport = (doc.getObject("XZ_Plane"), [""])
sketch7.MapMode = "FlatFace"
sketch7.addGeometry([
    Part.LineSegment(Vector(-9, 4, 0), Vector(-9, 21, 0)),
    Part.LineSegment(Vector(-9, 21, 0), Vector(9, 21, 0)),
    Part.LineSegment(Vector(9, 21, 0), Vector(9, 4, 0)),
    Part.LineSegment(Vector(9, 4, 0), Vector(-9, 4, 0)),
], False)
sketch7.addConstraint([
    Sketcher.Constraint("Coincident", 0, 2, 1, 1),
    Sketcher.Constraint("Coincident", 1, 2, 2, 1),
    Sketcher.Constraint("Coincident", 2, 2, 3, 1),
    Sketcher.Constraint("Coincident", 3, 2, 0, 1),
    Sketcher.Constraint("Vertical", 0),
    Sketcher.Constraint("Horizontal", 1),
    Sketcher.Constraint("Vertical", 2),
    Sketcher.Constraint("Horizontal", 3),
    Sketcher.Constraint("DistanceY", 0, 1, 0, 2, Q("17.5 mm")),
    Sketcher.Constraint("DistanceY", -1, 1, 0, 2, Q("21 mm")),
    Sketcher.Constraint("DistanceX", 1, 1, 1, 2, Q("17.78 mm")),
    Sketcher.Constraint("DistanceX", 0, 2, -1, 1, Q("8.89 mm")),
])
pocket3 = body.newObject("PartDesign::Pocket", "Pocket002")
pocket3.Profile = sketch7
pocket3.Length = 7
pocket3.Reversed = True
doc.recompute()

fillet3 = body.newObject("PartDesign::Fillet", "Fillet002")
fillet3.Base = (pocket3, edges_at(pocket3, [(-8.89, -1, 3.5), (8.89, -1, 3.5)]))
fillet3.Radius = 2
doc.recompute()

fillet4 = body.newObject("PartDesign::Fillet", "Fillet003")
fillet4.Base = (fillet3, edges_at(fillet3, [(-8.89, -2.5, 21), (8.89, -2.5, 21)]))
fillet4.Radius = 0.5

doc.recompute()
